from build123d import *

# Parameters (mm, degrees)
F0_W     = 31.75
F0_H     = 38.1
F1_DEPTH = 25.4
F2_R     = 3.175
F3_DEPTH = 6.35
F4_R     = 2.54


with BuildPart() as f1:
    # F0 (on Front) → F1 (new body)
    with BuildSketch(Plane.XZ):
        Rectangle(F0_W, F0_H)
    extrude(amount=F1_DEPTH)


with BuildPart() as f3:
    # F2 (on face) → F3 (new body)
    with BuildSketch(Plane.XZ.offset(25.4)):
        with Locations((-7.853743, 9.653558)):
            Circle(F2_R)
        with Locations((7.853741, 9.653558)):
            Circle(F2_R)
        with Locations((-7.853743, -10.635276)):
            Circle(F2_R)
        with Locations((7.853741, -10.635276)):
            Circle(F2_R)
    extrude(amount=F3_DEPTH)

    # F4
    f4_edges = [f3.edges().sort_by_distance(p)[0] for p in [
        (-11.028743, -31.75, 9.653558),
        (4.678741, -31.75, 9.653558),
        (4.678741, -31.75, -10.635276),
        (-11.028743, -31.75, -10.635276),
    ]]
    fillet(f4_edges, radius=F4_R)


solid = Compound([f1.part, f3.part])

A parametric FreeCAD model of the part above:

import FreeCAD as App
import Part
import Sketcher

V = App.Vector
Q = App.Units.Quantity


def edges_at(feature, points):
    """Names of the edges that pass closest to the given points."""
    edges = feature.Shape.Edges
    near = lambda p: min(range(len(edges)), key=lambda i: edges[i].distToShape(Part.Vertex(*p))[0])
    return sorted({f"Edge{near(p) + 1}" for p in points})


def add_polygon(sketch, points):
    """Adds a closed chain of lines whose ends are joined by coincident constraints."""
    first, n = sketch.GeometryCount, len(points)
    for a, b in zip(points, points[1:] + points[:1]):
        sketch.addGeometry(Part.LineSegment(App.Vector(*a, 0), App.Vector(*b, 0)), False)
    for i in range(n):
        sketch.addConstraint(Sketcher.Constraint("Coincident", first + i, 2, first + (i + 1) % n, 1))

doc = App.newDocument("Part")
body = doc.addObject("PartDesign::Body", "Body")

sketch1 = doc.addObject("Sketcher::SketchObject", "Sketch")
body.addObject(sketch1)
sketch1.AttachmentSupport = (doc.XZ_Plane, [""])
sketch1.MapMode = "FlatFace"
add_polygon(sketch1, [(-16, 19), (-16, -19), (16, -19), (16, 19)])
sketch1.addConstraint([
    Sketcher.Constraint("Vertical", 0),
    Sketcher.Constraint("Horizontal", 1),
    Sketcher.Constraint("Vertical", 2),
    Sketcher.Constraint("Horizontal", 3),
    Sketcher.Constraint("Symmetric", 0, 2, 2, 2, -1, 1),
    Sketcher.Constraint("DistanceY", 0, 2, 0, 1, Q("1.5 in")),
    Sketcher.Constraint("DistanceX", 1, 1, 1, 2, Q("1.25 in")),
])
pad1 = doc.addObject("PartDesign::Pad", "Pad")
body.addObject(pad1)
pad1.Profile = sketch1
pad1.Length = Q("1 in")
body2 = doc.addObject("PartDesign::Body", "Body001")
body2.AllowCompound = True

sketch2 = doc.addObject("Sketcher::SketchObject", "Sketch001")
body2.addObject(sketch2)
sketch2.AttachmentSupport = (doc.getObject("XZ_Plane001"), [""])
sketch2.MapMode = "FlatFace"
sketch2.AttachmentOffset = App.Placement(V(0, 0, 1 * 25.4), App.Rotation())
sketch2.addGeometry([
    Part.Circle(V(-7.9, 9.7, 0), V(0, 0, 1), 3.2),
    Part.Circle(V(7.9, 9.7, 0), V(0, 0, 1), 3.2),
    Part.Circle(V(-7.9, -10.6, 0), V(0, 0, 1), 3.2),
    Part.Circle(V(7.9, -10.6, 0), V(0, 0, 1), 3.2),
], False)
sketch2.addConstraint([
    Sketcher.Constraint("Equal", 0, 1),
    Sketcher.Constraint("Equal", 1, 2),
    Sketcher.Constraint("Equal", 2, 3),
    Sketcher.Constraint("Symmetric", 0, 3, 1, 3, -2),
    Sketcher.Constraint("Symmetric", 2, 3, 3, 3, -2),
    Sketcher.Constraint("Vertical", 0, 3, 2, 3),
    Sketcher.Constraint("Diameter", 0, Q("0.25 in")),
    Sketcher.Constraint("DistanceX", -1, 1, 1, 3, 7.853741),
    Sketcher.Constraint("DistanceY", -1, 1, 0, 3, 9.653558),
    Sketcher.Constraint("DistanceY", 2, 3, -1, 1, 10.635276),
])
pad2 = doc.addObject("PartDesign::Pad", "Pad001")
body2.addObject(pad2)
pad2.Profile = sketch2
pad2.Length = Q("0.25 in")
doc.recompute()

fillet = doc.addObject("PartDesign::Fillet", "Fillet")
body2.addObject(fillet)
fillet.Base = (pad2, edges_at(pad2, [
    (-11.029, -31.75, 9.654),
    (4.679, -31.75, 9.654),
    (4.679, -31.75, -10.635),
    (-11.029, -31.75, -10.635),
]))
fillet.Radius = Q("0.1 in")

doc.recompute()
